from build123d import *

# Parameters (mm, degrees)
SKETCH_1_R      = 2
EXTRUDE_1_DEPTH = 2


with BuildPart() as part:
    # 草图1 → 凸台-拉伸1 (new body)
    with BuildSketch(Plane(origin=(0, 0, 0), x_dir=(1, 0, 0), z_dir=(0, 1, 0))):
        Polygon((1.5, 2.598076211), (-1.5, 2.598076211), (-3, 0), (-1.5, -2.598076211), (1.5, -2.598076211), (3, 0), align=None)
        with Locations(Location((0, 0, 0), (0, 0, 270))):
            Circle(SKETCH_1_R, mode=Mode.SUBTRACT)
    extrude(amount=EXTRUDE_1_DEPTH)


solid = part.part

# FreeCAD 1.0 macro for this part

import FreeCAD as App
import Part
import Sketcher

V = App.Vector
Q = App.Units.Quantity


def add_polygon(sketch, points):
    """Adds a closed chain of lines whose ends are joined by coincident constraints."""
    first, n = sketch.GeometryCount, len(points)
    for a, b in zip(points, points[1:] + points[:1]):
        sketch.addGeometry(Part.LineSegment(App.Vector(*a, 0), App.Vector(*b, 0)), False)
    for i in range(n):
        sketch.addConstraint(Sketcher.Constraint("Coincident", first + i, 2, first + (i + 1) % n, 1))

doc = App.newDocument("Part")
params = doc.addObject("Spreadsheet::Sheet", "Params")
for row, (alias, value) in enumerate([
    ("sketch1_diameter", "4 mm"),
    ("sketch1_width", "3 mm"),
    ("sketch1_length", "3 mm"),
    ("pad1_length", "2 mm"),
], start=1):
    params.set(f"A{row}", alias)
    params.set(f"B{row}", "=" + value)
    params.setAlias(f"B{row}", alias)

body = doc.addObject("PartDesign::Body", "Body")

# Sketch on XZ plane
sketch1 = doc.addObject("Sketcher::SketchObject", "Sketch")
body.addObject(sketch1)
sketch1.AttachmentSupport = (doc.XZ_Plane, [""])
sketch1.MapMode = "FlatFace"
add_polygon(sketch1, [(1.5, -2.598076), (-1.5, -2.598076), (-3, 0), (-1.5, 2.598076), (1.5, 2.598076), (3, 0)])  # lines 0-5
sketch1.addGeometry(Part.Circle(V(0, 0, 0), V(0, 0, 1), 2), False)  # 6
sketch1.addConstraint([
    Sketcher.Constraint("Horizontal", 0),
    Sketcher.Constraint("Horizontal", 3),
    Sketcher.Constraint("Coincident", 6, 3, -1, 1),
    Sketcher.Constraint("Symmetric", 0, 2, 3, 2, -1, 1),
    Sketcher.Constraint("Symmetric", 1, 2, 4, 2, -1, 1),
    Sketcher.Constraint("PointOnObject", 1, 2, -1),
    Sketcher.Constraint("Parallel", 2, 5),
    Sketcher.Constraint("Vertical", 0, 2, 2, 2),
    Sketcher.Constraint("Diameter", 6, 4.0),
    Sketcher.Constraint("DistanceX", 0, 2, 0, 1, 3.0),
    Sketcher.Constraint("Angle", 1, Q("120 deg")),
    Sketcher.Constraint("Distance", 1, 3.0),
])
sketch1.setExpression("Constraints[14]", "Params.sketch1_diameter")
sketch1.setExpression("Constraints[15]", "Params.sketch1_width")
sketch1.setExpression("Constraints[17]", "Params.sketch1_length")
pad1 = doc.addObject("PartDesign::Pad", "Pad")
body.addObject(pad1)
pad1.Profile = sketch1
pad1.setExpression("Length", "Params.pad1_length")
pad1.Reversed = True

doc.recompute()
